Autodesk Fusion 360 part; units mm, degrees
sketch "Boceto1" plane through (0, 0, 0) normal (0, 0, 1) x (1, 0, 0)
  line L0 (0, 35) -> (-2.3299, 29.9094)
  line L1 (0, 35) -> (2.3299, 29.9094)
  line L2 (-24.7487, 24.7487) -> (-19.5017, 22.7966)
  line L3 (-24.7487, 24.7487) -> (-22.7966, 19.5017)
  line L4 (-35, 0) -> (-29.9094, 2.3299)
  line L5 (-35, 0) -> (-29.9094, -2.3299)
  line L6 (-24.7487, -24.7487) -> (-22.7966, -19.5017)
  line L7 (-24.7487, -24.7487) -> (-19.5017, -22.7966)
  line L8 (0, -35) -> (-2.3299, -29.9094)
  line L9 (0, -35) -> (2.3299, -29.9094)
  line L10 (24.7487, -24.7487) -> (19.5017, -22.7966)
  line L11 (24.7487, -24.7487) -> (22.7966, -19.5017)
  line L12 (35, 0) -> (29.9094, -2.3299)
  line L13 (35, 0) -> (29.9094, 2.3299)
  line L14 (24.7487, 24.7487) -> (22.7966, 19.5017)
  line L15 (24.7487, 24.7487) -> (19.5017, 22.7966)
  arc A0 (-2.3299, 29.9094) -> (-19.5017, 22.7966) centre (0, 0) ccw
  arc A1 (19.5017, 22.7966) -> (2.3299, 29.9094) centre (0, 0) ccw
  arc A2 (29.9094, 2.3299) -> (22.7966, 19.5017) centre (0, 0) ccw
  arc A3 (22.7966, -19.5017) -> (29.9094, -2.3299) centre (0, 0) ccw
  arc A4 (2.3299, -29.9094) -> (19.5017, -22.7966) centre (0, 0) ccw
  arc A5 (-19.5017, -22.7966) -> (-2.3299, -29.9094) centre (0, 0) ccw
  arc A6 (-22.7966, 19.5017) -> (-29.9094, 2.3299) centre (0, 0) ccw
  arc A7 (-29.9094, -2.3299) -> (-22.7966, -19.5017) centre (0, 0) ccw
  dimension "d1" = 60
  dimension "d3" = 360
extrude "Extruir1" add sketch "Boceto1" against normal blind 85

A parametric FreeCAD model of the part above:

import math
import FreeCAD as App
import Part
import Sketcher
Q = App.Units.Quantity

doc = App.newDocument("Part")
body = doc.addObject("PartDesign::Body", "Body")

# Sketch on XY plane
sketch1 = body.newObject("Sketcher::SketchObject", "Sketch")
sketch1.AttachmentSupport = (doc.getObject("XY_Plane"), [""])
sketch1.MapMode = "FlatFace"
sketch1.addGeometry(Part.LineSegment(App.Vector(2.3299, 29.9094, 0), App.Vector(0, 35, 0)), False)
sketch1.addGeometry(Part.LineSegment(App.Vector(0, 35, 0), App.Vector(-2.3299, 29.9094, 0)), False)
sketch1.addGeometry(Part.ArcOfCircle(Part.Circle(App.Vector(0, 0, 0), App.Vector(0, 0, 1), 30.000021), math.radians(94.454265), math.radians(130.54584)), False)
sketch1.addGeometry(Part.LineSegment(App.Vector(-19.5017, 22.7966, 0), App.Vector(-24.7487, 24.7487, 0)), False)
sketch1.addGeometry(Part.LineSegment(App.Vector(-24.7487, 24.7487, 0), App.Vector(-22.7966, 19.5017, 0)), False)
sketch1.addGeometry(Part.ArcOfCircle(Part.Circle(App.Vector(0, 0, 0), App.Vector(0, 0, 1), 30.000011), math.radians(139.45416), math.radians(175.545735)), False)
sketch1.addGeometry(Part.LineSegment(App.Vector(-29.9094, 2.3299, 0), App.Vector(-35, 0, 0)), False)
sketch1.addGeometry(Part.LineSegment(App.Vector(-35, 0, 0), App.Vector(-29.9094, -2.3299, 0)), False)
sketch1.addGeometry(Part.ArcOfCircle(Part.Circle(App.Vector(0, 0, 0), App.Vector(0, 0, 1), 30.000021), math.radians(-175.545735), math.radians(-139.45416)), False)
sketch1.addGeometry(Part.LineSegment(App.Vector(-22.7966, -19.5017, 0), App.Vector(-24.7487, -24.7487, 0)), False)
sketch1.addGeometry(Part.LineSegment(App.Vector(-24.7487, -24.7487, 0), App.Vector(-19.5017, -22.7966, 0)), False)
sketch1.addGeometry(Part.ArcOfCircle(Part.Circle(App.Vector(0, 0, 0), App.Vector(0, 0, 1), 30.000011), math.radians(-130.54584), math.radians(-94.454265)), False)
sketch1.addGeometry(Part.LineSegment(App.Vector(-2.3299, -29.9094, 0), App.Vector(0, -35, 0)), False)
sketch1.addGeometry(Part.LineSegment(App.Vector(0, -35, 0), App.Vector(2.3299, -29.9094, 0)), False)
sketch1.addGeometry(Part.ArcOfCircle(Part.Circle(App.Vector(0, 0, 0), App.Vector(0, 0, 1), 30.000021), math.radians(-85.545735), math.radians(-49.45416)), False)
sketch1.addGeometry(Part.LineSegment(App.Vector(19.5017, -22.7966, 0), App.Vector(24.7487, -24.7487, 0)), False)
sketch1.addGeometry(Part.LineSegment(App.Vector(24.7487, -24.7487, 0), App.Vector(22.7966, -19.5017, 0)), False)
sketch1.addGeometry(Part.ArcOfCircle(Part.Circle(App.Vector(0, 0, 0), App.Vector(0, 0, 1), 30.000011), math.radians(-40.54584), math.radians(-4.454265)), False)
sketch1.addGeometry(Part.LineSegment(App.Vector(29.9094, -2.3299, 0), App.Vector(35, 0, 0)), False)
sketch1.addGeometry(Part.LineSegment(App.Vector(35, 0, 0), App.Vector(29.9094, 2.3299, 0)), False)
sketch1.addGeometry(Part.ArcOfCircle(Part.Circle(App.Vector(0, 0, 0), App.Vector(0, 0, 1), 30.000021), math.radians(4.454265), math.radians(40.54584)), False)
sketch1.addGeometry(Part.LineSegment(App.Vector(22.7966, 19.5017, 0), App.Vector(24.7487, 24.7487, 0)), False)
sketch1.addGeometry(Part.LineSegment(App.Vector(24.7487, 24.7487, 0), App.Vector(19.5017, 22.7966, 0)), False)
sketch1.addGeometry(Part.ArcOfCircle(Part.Circle(App.Vector(0, 0, 0), App.Vector(0, 0, 1), 30.000011), math.radians(49.45416), math.radians(85.545735)), False)
sketch1.addConstraint(Sketcher.Constraint("Coincident", 0, 2, 1, 1))
sketch1.addConstraint(Sketcher.Constraint("Coincident", 1, 2, 2, 1))
sketch1.addConstraint(Sketcher.Constraint("Coincident", 2, 2, 3, 1))
sketch1.addConstraint(Sketcher.Constraint("Coincident", 3, 2, 4, 1))
sketch1.addConstraint(Sketcher.Constraint("Coincident", 4, 2, 5, 1))
sketch1.addConstraint(Sketcher.Constraint("Coincident", 5, 2, 6, 1))
sketch1.addConstraint(Sketcher.Constraint("Coincident", 6, 2, 7, 1))
sketch1.addConstraint(Sketcher.Constraint("Coincident", 7, 2, 8, 1))
sketch1.addConstraint(Sketcher.Constraint("Coincident", 8, 2, 9, 1))
sketch1.addConstraint(Sketcher.Constraint("Coincident", 9, 2, 10, 1))
sketch1.addConstraint(Sketcher.Constraint("Coincident", 10, 2, 11, 1))
sketch1.addConstraint(Sketcher.Constraint("Coincident", 11, 2, 12, 1))
sketch1.addConstraint(Sketcher.Constraint("Coincident", 12, 2, 13, 1))
sketch1.addConstraint(Sketcher.Constraint("Coincident", 13, 2, 14, 1))
sketch1.addConstraint(Sketcher.Constraint("Coincident", 14, 2, 15, 1))
sketch1.addConstraint(Sketcher.Constraint("Coincident", 15, 2, 16, 1))
sketch1.addConstraint(Sketcher.Constraint("Coincident", 16, 2, 17, 1))
sketch1.addConstraint(Sketcher.Constraint("Coincident", 17, 2, 18, 1))
sketch1.addConstraint(Sketcher.Constraint("Coincident", 18, 2, 19, 1))
sketch1.addConstraint(Sketcher.Constraint("Coincident", 19, 2, 20, 1))
sketch1.addConstraint(Sketcher.Constraint("Coincident", 20, 2, 21, 1))
sketch1.addConstraint(Sketcher.Constraint("Coincident", 21, 2, 22, 1))
sketch1.addConstraint(Sketcher.Constraint("Coincident", 22, 2, 23, 1))
sketch1.addConstraint(Sketcher.Constraint("Coincident", 23, 2, 0, 1))
sketch1.addConstraint(Sketcher.Constraint("Coincident", 2, 3, -1, 1))
sketch1.addConstraint(Sketcher.Constraint("Coincident", 5, 3, -1, 1))
sketch1.addConstraint(Sketcher.Constraint("Coincident", 8, 3, -1, 1))
sketch1.addConstraint(Sketcher.Constraint("Coincident", 11, 3, -1, 1))
sketch1.addConstraint(Sketcher.Constraint("Coincident", 14, 3, -1, 1))
sketch1.addConstraint(Sketcher.Constraint("Coincident", 17, 3, -1, 1))
sketch1.addConstraint(Sketcher.Constraint("Coincident", 20, 3, -1, 1))
sketch1.addConstraint(Sketcher.Constraint("Coincident", 23, 3, -1, 1))
sketch1.addConstraint(Sketcher.Constraint("Equal", 2, 5))
sketch1.addConstraint(Sketcher.Constraint("Equal", 5, 8))
sketch1.addConstraint(Sketcher.Constraint("Equal", 8, 11))
sketch1.addConstraint(Sketcher.Constraint("Equal", 11, 14))
sketch1.addConstraint(Sketcher.Constraint("Equal", 14, 17))
sketch1.addConstraint(Sketcher.Constraint("Equal", 17, 20))
sketch1.addConstraint(Sketcher.Constraint("Equal", 20, 23))
sketch1.addConstraint(Sketcher.Constraint("Symmetric", 0, 2, 12, 2, -1, 1))
sketch1.addConstraint(Sketcher.Constraint("Symmetric", 3, 2, 15, 2, -1, 1))
sketch1.addConstraint(Sketcher.Constraint("Symmetric", 6, 2, 18, 2, -1, 1))
sketch1.addConstraint(Sketcher.Constraint("Symmetric", 9, 2, 21, 2, -1, 1))
sketch1.addConstraint(Sketcher.Constraint("Symmetric", 9, 2, 15, 2, -2))
sketch1.addConstraint(Sketcher.Constraint("PointOnObject", 0, 2, -2))
sketch1.addConstraint(Sketcher.Constraint("PointOnObject", 6, 2, -1))
sketch1.addConstraint(Sketcher.Constraint("Perpendicular", 0, 6))
sketch1.addConstraint(Sketcher.Constraint("Perpendicular", 1, 7))
sketch1.addConstraint(Sketcher.Constraint("Perpendicular", 3, 9))
sketch1.addConstraint(Sketcher.Constraint("Perpendicular", 4, 10))
sketch1.addConstraint(Sketcher.Constraint("Perpendicular", 6, 12))
sketch1.addConstraint(Sketcher.Constraint("Perpendicular", 7, 13))
sketch1.addConstraint(Sketcher.Constraint("Perpendicular", 9, 15))
sketch1.addConstraint(Sketcher.Constraint("Perpendicular", 10, 16))
sketch1.addConstraint(Sketcher.Constraint("Perpendicular", 12, 18))
sketch1.addConstraint(Sketcher.Constraint("Perpendicular", 13, 19))
sketch1.addConstraint(Sketcher.Constraint("Perpendicular", 15, 21))
sketch1.addConstraint(Sketcher.Constraint("Perpendicular", 16, 22))
sketch1.addConstraint(Sketcher.Constraint("Horizontal", 11, 2, 13, 2))
sketch1.addConstraint(Sketcher.Constraint("Horizontal", 10, 2, 14, 2))
sketch1.addConstraint(Sketcher.Constraint("Equal", 1, 3))
sketch1.addConstraint(Sketcher.Constraint("Equal", 3, 4))
sketch1.addConstraint(Sketcher.Constraint("Equal", 4, 6))
sketch1.addConstraint(Sketcher.Constraint("Radius", 2, Q("30 mm")))
sketch1.addConstraint(Sketcher.Constraint("DistanceY", -1, 1, 0, 2, Q("35 mm")))
sketch1.addConstraint(Sketcher.Constraint("DistanceX", 1, 2, -1, 1, Q("2.33 mm")))
sketch1.addConstraint(Sketcher.Constraint("DistanceX", 3, 2, 2, 2, Q("5.247 mm")))
pad1 = body.newObject("PartDesign::Pad", "Pad")
pad1.Profile = sketch1
pad1.Length = 85
pad1.Reversed = True

doc.recompute()
